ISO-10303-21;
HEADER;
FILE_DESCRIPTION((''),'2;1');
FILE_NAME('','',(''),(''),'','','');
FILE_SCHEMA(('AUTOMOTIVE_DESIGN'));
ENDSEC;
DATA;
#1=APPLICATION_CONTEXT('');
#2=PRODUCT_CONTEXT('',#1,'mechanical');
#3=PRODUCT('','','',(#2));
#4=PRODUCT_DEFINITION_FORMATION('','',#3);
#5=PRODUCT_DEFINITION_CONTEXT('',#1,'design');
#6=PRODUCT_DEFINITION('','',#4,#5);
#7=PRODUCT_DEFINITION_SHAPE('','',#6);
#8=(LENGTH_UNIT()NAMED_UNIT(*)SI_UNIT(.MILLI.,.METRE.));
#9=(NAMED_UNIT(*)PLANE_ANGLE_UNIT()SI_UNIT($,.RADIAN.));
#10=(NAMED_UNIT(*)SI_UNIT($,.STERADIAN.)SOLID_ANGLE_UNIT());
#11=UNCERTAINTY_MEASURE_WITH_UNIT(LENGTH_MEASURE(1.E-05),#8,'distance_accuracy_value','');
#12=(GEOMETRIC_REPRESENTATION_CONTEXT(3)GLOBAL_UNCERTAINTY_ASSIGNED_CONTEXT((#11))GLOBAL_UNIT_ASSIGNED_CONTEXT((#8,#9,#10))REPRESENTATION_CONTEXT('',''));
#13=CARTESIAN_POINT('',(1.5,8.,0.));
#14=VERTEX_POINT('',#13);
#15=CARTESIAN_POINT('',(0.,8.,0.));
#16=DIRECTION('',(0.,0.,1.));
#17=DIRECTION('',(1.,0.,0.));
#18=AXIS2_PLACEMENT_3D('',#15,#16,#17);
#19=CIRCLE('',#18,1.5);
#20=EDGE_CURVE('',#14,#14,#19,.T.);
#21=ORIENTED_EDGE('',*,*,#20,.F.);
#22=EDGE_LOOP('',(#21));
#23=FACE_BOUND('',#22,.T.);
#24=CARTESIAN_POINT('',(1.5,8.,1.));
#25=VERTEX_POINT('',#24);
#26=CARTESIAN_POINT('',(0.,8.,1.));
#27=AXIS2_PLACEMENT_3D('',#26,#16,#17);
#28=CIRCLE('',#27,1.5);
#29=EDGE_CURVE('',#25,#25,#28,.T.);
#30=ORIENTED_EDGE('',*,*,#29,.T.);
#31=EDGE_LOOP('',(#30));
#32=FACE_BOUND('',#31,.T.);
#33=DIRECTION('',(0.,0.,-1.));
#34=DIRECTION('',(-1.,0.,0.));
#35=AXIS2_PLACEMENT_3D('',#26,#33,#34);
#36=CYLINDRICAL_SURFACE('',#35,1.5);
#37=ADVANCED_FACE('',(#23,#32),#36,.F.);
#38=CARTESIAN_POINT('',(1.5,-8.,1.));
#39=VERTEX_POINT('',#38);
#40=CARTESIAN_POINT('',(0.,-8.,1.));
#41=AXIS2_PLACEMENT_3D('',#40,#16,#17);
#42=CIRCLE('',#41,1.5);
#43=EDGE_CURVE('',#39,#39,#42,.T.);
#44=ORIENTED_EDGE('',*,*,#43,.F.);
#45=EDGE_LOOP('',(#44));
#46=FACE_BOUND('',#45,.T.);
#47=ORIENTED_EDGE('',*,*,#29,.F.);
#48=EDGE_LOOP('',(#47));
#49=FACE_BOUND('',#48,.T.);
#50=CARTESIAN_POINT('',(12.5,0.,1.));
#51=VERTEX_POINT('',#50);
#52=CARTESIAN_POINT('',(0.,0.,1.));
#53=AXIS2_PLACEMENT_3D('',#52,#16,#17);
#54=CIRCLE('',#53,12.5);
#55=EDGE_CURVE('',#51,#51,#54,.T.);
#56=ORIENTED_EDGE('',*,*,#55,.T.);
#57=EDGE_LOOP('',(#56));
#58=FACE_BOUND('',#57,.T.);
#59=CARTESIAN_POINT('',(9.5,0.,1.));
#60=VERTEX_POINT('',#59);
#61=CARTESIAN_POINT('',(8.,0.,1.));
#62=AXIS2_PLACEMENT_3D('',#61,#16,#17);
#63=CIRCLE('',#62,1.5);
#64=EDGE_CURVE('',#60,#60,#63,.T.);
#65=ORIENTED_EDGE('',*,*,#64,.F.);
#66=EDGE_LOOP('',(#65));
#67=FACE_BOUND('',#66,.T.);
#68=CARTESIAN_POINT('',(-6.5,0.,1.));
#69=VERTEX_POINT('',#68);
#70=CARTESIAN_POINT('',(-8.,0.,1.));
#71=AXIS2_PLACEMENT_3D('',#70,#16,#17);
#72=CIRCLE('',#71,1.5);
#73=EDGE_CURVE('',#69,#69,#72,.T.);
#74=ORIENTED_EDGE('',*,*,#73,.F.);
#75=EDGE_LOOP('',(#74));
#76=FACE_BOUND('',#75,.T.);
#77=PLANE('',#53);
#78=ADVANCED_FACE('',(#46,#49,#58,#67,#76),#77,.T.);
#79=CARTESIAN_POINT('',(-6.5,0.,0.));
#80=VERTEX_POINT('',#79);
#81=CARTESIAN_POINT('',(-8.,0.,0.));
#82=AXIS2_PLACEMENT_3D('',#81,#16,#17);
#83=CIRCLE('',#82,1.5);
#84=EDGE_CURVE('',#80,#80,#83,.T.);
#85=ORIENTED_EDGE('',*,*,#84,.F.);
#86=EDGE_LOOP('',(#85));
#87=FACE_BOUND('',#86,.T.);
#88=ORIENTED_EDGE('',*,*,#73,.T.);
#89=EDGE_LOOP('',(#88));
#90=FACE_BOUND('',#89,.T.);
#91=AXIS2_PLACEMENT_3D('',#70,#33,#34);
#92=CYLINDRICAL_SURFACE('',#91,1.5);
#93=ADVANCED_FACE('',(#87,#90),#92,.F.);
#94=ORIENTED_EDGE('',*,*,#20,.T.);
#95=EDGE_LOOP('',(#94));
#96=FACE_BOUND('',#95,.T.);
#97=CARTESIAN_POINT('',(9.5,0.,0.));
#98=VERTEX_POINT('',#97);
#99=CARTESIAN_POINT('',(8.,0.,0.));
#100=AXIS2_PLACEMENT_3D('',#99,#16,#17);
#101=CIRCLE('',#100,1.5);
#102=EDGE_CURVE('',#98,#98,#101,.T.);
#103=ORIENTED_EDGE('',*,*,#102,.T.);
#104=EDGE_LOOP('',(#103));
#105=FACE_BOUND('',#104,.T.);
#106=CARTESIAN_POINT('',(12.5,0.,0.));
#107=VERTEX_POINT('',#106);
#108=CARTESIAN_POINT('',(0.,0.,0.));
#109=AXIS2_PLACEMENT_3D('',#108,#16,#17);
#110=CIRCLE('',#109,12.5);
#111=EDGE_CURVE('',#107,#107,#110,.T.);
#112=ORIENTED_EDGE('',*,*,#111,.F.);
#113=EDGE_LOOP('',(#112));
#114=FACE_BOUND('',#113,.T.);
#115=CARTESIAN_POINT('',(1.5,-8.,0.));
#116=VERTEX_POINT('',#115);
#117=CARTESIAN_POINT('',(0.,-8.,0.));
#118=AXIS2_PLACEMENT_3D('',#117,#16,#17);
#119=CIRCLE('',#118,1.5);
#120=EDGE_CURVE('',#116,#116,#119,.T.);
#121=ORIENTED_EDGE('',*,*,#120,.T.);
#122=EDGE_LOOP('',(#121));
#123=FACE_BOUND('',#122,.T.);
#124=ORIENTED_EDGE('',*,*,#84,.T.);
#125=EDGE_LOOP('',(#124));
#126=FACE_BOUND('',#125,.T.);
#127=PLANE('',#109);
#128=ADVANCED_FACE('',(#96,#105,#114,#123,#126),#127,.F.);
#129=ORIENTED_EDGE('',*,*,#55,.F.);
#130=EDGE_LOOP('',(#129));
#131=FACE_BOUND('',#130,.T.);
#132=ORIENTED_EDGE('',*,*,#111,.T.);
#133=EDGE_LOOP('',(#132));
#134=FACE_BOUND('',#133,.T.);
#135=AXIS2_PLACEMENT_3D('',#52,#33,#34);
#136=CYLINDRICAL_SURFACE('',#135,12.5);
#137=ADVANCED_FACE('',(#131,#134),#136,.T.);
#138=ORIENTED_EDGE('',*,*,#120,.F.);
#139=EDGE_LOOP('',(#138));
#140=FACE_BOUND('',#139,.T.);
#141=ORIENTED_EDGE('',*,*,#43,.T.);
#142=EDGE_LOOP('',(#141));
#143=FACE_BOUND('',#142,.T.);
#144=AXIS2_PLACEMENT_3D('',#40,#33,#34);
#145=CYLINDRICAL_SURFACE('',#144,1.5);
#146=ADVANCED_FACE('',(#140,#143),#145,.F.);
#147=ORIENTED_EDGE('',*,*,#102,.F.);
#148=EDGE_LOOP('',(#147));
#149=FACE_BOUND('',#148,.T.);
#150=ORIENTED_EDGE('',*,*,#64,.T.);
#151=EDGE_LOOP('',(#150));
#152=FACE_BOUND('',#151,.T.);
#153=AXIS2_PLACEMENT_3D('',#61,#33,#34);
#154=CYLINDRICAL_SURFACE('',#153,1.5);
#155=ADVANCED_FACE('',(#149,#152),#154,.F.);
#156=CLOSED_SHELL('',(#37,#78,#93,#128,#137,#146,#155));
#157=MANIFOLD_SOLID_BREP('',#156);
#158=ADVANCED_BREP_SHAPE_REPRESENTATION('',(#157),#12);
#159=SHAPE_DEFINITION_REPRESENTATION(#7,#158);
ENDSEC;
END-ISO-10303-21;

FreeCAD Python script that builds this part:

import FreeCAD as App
import Part
import Sketcher
Q = App.Units.Quantity

doc = App.newDocument("Part")
body = doc.addObject("PartDesign::Body", "Body")

# Sketch on XY plane
sketch1 = body.newObject("Sketcher::SketchObject", "Sketch")
sketch1.AttachmentSupport = (doc.getObject("XY_Plane"), [""])
sketch1.MapMode = "FlatFace"
sketch1.addGeometry([
    Part.Circle(App.Vector(0, 0, 0), App.Vector(0, 0, 1), 12.5),  # 0
    Part.Circle(App.Vector(0, -8, 0), App.Vector(0, 0, 1), 1.5),  # 1
    Part.Circle(App.Vector(-8, 0, 0), App.Vector(0, 0, 1), 1.5),  # 2
    Part.Circle(App.Vector(8, 0, 0), App.Vector(0, 0, 1), 1.5),  # 3
    Part.Circle(App.Vector(0, 8, 0), App.Vector(0, 0, 1), 1.5),  # 4
], False)
sketch1.addConstraint([
    Sketcher.Constraint("Coincident", 0, 3, -1, 1),
    Sketcher.Constraint("Equal", 1, 2),
    Sketcher.Constraint("Equal", 2, 3),
    Sketcher.Constraint("Equal", 3, 4),
    Sketcher.Constraint("Symmetric", 2, 3, 3, 3, -1, 1),
    Sketcher.Constraint("Symmetric", 1, 3, 4, 3, -1, 1),
    Sketcher.Constraint("PointOnObject", 1, 3, -2),
    Sketcher.Constraint("PointOnObject", 2, 3, -1),
    Sketcher.Constraint("Diameter", 0, Q("25 mm")),
    Sketcher.Constraint("Diameter", 1, Q("3 mm")),
    Sketcher.Constraint("DistanceY", 1, 3, -1, 1, Q("8 mm")),
    Sketcher.Constraint("DistanceX", 2, 3, -1, 1, Q("8 mm")),
])
pad1 = body.newObject("PartDesign::Pad", "Pad")
pad1.Profile = sketch1
pad1.Length = 1

doc.recompute()
